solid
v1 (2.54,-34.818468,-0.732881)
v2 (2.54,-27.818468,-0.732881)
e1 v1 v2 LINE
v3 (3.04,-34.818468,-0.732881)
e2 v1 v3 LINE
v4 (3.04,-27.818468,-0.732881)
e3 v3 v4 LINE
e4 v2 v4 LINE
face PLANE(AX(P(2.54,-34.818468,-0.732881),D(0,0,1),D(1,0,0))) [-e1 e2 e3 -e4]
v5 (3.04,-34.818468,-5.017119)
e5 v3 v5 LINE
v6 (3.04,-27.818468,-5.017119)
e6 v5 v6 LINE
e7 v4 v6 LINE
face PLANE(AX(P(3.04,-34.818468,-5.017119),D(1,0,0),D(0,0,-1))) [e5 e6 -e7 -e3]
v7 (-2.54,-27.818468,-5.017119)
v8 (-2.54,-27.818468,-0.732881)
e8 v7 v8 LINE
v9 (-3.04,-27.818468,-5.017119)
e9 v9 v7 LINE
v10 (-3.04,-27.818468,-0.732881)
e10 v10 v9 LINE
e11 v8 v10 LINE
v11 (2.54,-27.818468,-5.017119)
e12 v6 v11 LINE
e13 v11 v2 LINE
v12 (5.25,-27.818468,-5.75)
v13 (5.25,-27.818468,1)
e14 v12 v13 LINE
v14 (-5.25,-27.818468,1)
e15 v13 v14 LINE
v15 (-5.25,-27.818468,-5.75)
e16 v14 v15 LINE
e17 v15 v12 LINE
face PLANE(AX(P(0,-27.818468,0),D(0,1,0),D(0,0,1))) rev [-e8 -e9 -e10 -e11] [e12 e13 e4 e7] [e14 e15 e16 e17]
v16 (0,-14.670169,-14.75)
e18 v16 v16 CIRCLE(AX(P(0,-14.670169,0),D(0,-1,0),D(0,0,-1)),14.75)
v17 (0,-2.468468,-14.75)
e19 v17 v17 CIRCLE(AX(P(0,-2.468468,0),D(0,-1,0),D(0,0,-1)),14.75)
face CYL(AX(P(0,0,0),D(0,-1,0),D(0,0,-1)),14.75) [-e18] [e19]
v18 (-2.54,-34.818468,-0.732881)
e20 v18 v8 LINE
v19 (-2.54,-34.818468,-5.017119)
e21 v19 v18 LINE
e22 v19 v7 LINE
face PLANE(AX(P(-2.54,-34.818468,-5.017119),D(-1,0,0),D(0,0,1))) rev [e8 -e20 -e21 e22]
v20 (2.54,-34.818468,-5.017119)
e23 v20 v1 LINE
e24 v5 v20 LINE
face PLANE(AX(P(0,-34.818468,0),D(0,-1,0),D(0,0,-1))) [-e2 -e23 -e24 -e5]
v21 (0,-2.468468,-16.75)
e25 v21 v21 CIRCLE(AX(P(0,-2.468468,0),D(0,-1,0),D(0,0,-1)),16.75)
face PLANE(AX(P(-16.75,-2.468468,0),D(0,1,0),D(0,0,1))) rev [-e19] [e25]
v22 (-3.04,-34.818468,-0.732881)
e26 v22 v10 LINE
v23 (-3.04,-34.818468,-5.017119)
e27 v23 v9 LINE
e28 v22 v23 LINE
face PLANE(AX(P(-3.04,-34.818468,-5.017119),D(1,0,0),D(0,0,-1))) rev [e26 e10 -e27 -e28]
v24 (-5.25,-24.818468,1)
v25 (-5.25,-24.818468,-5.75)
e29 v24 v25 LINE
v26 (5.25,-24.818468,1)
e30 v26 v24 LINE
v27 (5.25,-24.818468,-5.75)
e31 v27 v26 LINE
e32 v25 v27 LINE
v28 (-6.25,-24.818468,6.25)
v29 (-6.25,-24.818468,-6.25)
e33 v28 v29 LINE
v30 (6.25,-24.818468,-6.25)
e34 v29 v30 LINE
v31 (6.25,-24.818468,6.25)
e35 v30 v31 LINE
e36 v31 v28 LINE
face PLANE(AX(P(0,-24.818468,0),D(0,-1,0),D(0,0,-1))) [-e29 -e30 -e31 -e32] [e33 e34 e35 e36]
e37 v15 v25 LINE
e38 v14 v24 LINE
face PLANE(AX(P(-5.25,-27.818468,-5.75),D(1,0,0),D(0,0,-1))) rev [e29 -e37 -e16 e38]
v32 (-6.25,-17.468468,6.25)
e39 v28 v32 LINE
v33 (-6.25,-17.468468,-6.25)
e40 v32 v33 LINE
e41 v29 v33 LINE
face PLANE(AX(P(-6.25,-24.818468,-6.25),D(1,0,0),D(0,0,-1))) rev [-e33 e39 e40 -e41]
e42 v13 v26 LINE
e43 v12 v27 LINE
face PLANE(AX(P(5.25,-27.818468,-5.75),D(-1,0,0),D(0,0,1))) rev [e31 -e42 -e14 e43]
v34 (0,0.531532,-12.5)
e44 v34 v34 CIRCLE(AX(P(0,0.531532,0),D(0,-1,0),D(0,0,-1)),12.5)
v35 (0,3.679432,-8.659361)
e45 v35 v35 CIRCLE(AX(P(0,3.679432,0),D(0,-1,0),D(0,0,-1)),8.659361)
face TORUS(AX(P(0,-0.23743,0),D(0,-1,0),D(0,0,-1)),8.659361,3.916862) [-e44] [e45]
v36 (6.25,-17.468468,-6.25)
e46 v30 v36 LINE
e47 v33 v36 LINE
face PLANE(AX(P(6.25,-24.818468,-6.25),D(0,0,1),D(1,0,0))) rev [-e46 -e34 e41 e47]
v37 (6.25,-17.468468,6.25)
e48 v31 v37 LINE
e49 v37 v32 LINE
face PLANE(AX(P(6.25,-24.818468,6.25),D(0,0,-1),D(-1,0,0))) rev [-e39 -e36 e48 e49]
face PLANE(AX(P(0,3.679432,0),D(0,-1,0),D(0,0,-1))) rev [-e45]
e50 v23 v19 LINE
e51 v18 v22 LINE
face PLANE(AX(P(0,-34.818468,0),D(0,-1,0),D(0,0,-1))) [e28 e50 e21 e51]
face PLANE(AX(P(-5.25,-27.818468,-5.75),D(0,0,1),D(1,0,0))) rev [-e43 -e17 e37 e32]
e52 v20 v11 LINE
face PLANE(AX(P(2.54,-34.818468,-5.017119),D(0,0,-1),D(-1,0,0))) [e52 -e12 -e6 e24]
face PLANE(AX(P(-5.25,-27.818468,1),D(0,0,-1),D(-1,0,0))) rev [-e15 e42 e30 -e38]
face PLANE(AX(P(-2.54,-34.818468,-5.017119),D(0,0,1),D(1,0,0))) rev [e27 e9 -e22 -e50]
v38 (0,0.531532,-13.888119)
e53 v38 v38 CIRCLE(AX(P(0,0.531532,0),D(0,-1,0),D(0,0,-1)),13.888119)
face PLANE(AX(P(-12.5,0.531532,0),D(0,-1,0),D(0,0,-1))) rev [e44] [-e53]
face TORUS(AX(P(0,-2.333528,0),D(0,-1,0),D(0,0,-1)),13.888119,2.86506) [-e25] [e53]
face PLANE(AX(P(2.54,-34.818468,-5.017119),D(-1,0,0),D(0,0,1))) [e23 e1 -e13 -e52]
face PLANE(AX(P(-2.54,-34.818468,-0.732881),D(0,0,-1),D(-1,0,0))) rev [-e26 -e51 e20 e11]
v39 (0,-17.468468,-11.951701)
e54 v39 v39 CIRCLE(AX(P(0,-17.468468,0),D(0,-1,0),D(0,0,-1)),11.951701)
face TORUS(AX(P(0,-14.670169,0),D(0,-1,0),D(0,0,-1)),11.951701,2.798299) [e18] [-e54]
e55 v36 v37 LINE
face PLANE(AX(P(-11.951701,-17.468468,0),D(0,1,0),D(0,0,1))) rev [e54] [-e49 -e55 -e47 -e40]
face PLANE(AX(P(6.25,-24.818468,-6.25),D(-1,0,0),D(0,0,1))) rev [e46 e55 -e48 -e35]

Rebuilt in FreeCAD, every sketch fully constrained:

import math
import FreeCAD as App
import Part
import Sketcher

V = App.Vector
Q = App.Units.Quantity

doc = App.newDocument("Part")
body = doc.addObject("PartDesign::Body", "Body")

# Sketch on XY plane
sketch1 = body.newObject("Sketcher::SketchObject", "Sketch")
sketch1.AttachmentSupport = (doc.getObject("XY_Plane"), [""])
sketch1.MapMode = "FlatFace"
sketch1.addGeometry([
    Part.LineSegment(V(0, 3.679432, 0), V(-8.659361, 3.679432, 0)),  # 0
    Part.ArcOfCircle(Part.Circle(V(-8.659361, -0.23743, 0), V(0, 0, 1), 3.916862), math.radians(90), math.radians(168.678101)),  # 1
    Part.LineSegment(V(-12.5, 0.531532, 0), V(-13.888119, 0.531532, 0)),  # 2
    Part.ArcOfCircle(Part.Circle(V(-13.888119, -2.333528, 0), V(0, 0, 1), 2.86506), math.radians(90), math.radians(182.699536)),  # 3
    Part.LineSegment(V(-16.75, -2.468468, 0), V(-14.75, -2.468468, 0)),  # 4
    Part.LineSegment(V(-14.75, -2.468468, 0), V(-14.75, -14.670169, 0)),  # 5
    Part.ArcOfCircle(Part.Circle(V(-11.951701, -14.670169, 0), V(0, 0, 1), 2.798299), math.radians(180), math.radians(270)),  # 6
    Part.LineSegment(V(-11.951701, -17.468468, 0), V(0, -17.468468, 0)),  # 7
    Part.LineSegment(V(0, -17.468468, 0), V(0, 3.679432, 0)),  # 8
], False)
sketch1.addConstraint([
    Sketcher.Constraint("Tangent", 0, 2, 1, 1),
    Sketcher.Constraint("Coincident", 1, 2, 2, 1),
    Sketcher.Constraint("Tangent", 2, 2, 3, 1),
    Sketcher.Constraint("Coincident", 3, 2, 4, 1),
    Sketcher.Constraint("Coincident", 4, 2, 5, 1),
    Sketcher.Constraint("Tangent", 5, 2, 6, 1),
    Sketcher.Constraint("Tangent", 6, 2, 7, 1),
    Sketcher.Constraint("Coincident", 7, 2, 8, 1),
    Sketcher.Constraint("Coincident", 8, 2, 0, 1),
    Sketcher.Constraint("Horizontal", 0),
    Sketcher.Constraint("Horizontal", 2),
    Sketcher.Constraint("Horizontal", 4),
    Sketcher.Constraint("Vertical", 5),
    Sketcher.Constraint("Horizontal", 7),
    Sketcher.Constraint("Vertical", 8),
    Sketcher.Constraint("PointOnObject", 7, 2, -2),
    Sketcher.Constraint("DistanceX", 4, 1, 4, 2, Q("2 mm")),
    Sketcher.Constraint("DistanceY", 3, 2, 2, 2, Q("3 mm")),
    Sketcher.Constraint("DistanceY", 6, 2, 4, 2, Q("15 mm")),
    Sketcher.Constraint("DistanceX", 1, 2, -1, 1, Q("12.5 mm")),
    Sketcher.Constraint("Radius", 6, Q("2.798299 mm")),
    Sketcher.Constraint("DistanceX", 3, 2, -1, 1, Q("16.75 mm")),
    Sketcher.Constraint("Radius", 3, Q("2.86506 mm")),
    Sketcher.Constraint("DistanceY", 8, 1, 8, 2, Q("21.1479 mm")),
    Sketcher.Constraint("Radius", 1, Q("3.916862 mm")),
    Sketcher.Constraint("DistanceY", 1, 3, -1, 1, Q("0.23743 mm")),
])
revolution = body.newObject("PartDesign::Revolution", "Revolution")
revolution.Profile = sketch1
revolution.ReferenceAxis = (sketch1, ["V_Axis"])
revolution.Angle = 360

# Sketch on XZ plane
sketch2 = body.newObject("Sketcher::SketchObject", "Sketch001")
sketch2.AttachmentSupport = (doc.getObject("XZ_Plane"), [""])
sketch2.MapMode = "FlatFace"
sketch2.AttachmentOffset = App.Placement(V(0, 0, 17.468468), App.Rotation())
sketch2.addGeometry([
    Part.LineSegment(V(-6.25, 6.25, 0), V(-6.25, -6.25, 0)),
    Part.LineSegment(V(-6.25, -6.25, 0), V(6.25, -6.25, 0)),
    Part.LineSegment(V(6.25, -6.25, 0), V(6.25, 6.25, 0)),
    Part.LineSegment(V(6.25, 6.25, 0), V(-6.25, 6.25, 0)),
], False)
sketch2.addConstraint([
    Sketcher.Constraint("Coincident", 0, 2, 1, 1),
    Sketcher.Constraint("Coincident", 1, 2, 2, 1),
    Sketcher.Constraint("Coincident", 2, 2, 3, 1),
    Sketcher.Constraint("Coincident", 3, 2, 0, 1),
    Sketcher.Constraint("Vertical", 0),
    Sketcher.Constraint("Horizontal", 1),
    Sketcher.Constraint("Vertical", 2),
    Sketcher.Constraint("Horizontal", 3),
    Sketcher.Constraint("Symmetric", 0, 2, 2, 2, -1, 1),
    Sketcher.Constraint("Equal", 3, 0),
    Sketcher.Constraint("DistanceX", 1, 1, 1, 2, Q("12.5 mm")),
])
pad1 = body.newObject("PartDesign::Pad", "Pad")
pad1.Profile = sketch2
pad1.Length = 7.35

# Sketch on XZ plane
sketch3 = body.newObject("Sketcher::SketchObject", "Sketch002")
sketch3.AttachmentSupport = (doc.getObject("XZ_Plane"), [""])
sketch3.MapMode = "FlatFace"
sketch3.AttachmentOffset = App.Placement(V(0, 0, 24.818468), App.Rotation())
sketch3.addGeometry([
    Part.LineSegment(V(5.25, -5.75, 0), V(5.25, 1, 0)),
    Part.LineSegment(V(5.25, 1, 0), V(-5.25, 1, 0)),
    Part.LineSegment(V(-5.25, 1, 0), V(-5.25, -5.75, 0)),
    Part.LineSegment(V(-5.25, -5.75, 0), V(5.25, -5.75, 0)),
], False)
sketch3.addConstraint([
    Sketcher.Constraint("Coincident", 0, 2, 1, 1),
    Sketcher.Constraint("Coincident", 1, 2, 2, 1),
    Sketcher.Constraint("Coincident", 2, 2, 3, 1),
    Sketcher.Constraint("Coincident", 3, 2, 0, 1),
    Sketcher.Constraint("Vertical", 0),
    Sketcher.Constraint("Horizontal", 1),
    Sketcher.Constraint("Vertical", 2),
    Sketcher.Constraint("Horizontal", 3),
    Sketcher.Constraint("DistanceX", 1, 2, 1, 1, Q("10.5 mm")),
    Sketcher.Constraint("DistanceY", -1, 1, 0, 2, Q("1 mm")),
    Sketcher.Constraint("DistanceY", 0, 1, 0, 2, Q("6.75 mm")),
    Sketcher.Constraint("DistanceX", -1, 1, 0, 2, Q("5.25 mm")),
])
pad2 = body.newObject("PartDesign::Pad", "Pad001")
pad2.Profile = sketch3
pad2.Length = 3

# Sketch on XZ plane
sketch4 = body.newObject("Sketcher::SketchObject", "Sketch003")
sketch4.AttachmentSupport = (doc.getObject("XZ_Plane"), [""])
sketch4.MapMode = "FlatFace"
sketch4.AttachmentOffset = App.Placement(V(0, 0, 27.818468), App.Rotation())
sketch4.addGeometry([
    Part.LineSegment(V(-3.04, -0.732881, 0), V(-3.04, -5.017119, 0)),
    Part.LineSegment(V(-3.04, -5.017119, 0), V(-2.54, -5.017119, 0)),
    Part.LineSegment(V(-2.54, -5.017119, 0), V(-2.54, -0.732881, 0)),
    Part.LineSegment(V(-2.54, -0.732881, 0), V(-3.04, -0.732881, 0)),
], False)
sketch4.addConstraint([
    Sketcher.Constraint("Coincident", 0, 2, 1, 1),
    Sketcher.Constraint("Coincident", 1, 2, 2, 1),
    Sketcher.Constraint("Coincident", 2, 2, 3, 1),
    Sketcher.Constraint("Coincident", 3, 2, 0, 1),
    Sketcher.Constraint("Vertical", 0),
    Sketcher.Constraint("Horizontal", 1),
    Sketcher.Constraint("Vertical", 2),
    Sketcher.Constraint("Horizontal", 3),
    Sketcher.Constraint("DistanceX", 1, 1, 1, 2, Q("0.5 mm")),
    Sketcher.Constraint("DistanceX", 0, 2, -1, 1, Q("3.04 mm")),
    Sketcher.Constraint("DistanceY", 0, 2, 0, 1, Q("4.284239 mm")),
    Sketcher.Constraint("DistanceY", 0, 2, -1, 1, Q("5.017119 mm")),
])
pad3 = body.newObject("PartDesign::Pad", "Pad002")
pad3.Profile = sketch4
pad3.Length = 7
doc.recompute()

mirrored = body.newObject("PartDesign::Mirrored", "Mirrored")
mirrored.Originals = [pad3]
mirrored.MirrorPlane = (doc.getObject("YZ_Plane"), [""])
body.Tip = mirrored

doc.recompute()
